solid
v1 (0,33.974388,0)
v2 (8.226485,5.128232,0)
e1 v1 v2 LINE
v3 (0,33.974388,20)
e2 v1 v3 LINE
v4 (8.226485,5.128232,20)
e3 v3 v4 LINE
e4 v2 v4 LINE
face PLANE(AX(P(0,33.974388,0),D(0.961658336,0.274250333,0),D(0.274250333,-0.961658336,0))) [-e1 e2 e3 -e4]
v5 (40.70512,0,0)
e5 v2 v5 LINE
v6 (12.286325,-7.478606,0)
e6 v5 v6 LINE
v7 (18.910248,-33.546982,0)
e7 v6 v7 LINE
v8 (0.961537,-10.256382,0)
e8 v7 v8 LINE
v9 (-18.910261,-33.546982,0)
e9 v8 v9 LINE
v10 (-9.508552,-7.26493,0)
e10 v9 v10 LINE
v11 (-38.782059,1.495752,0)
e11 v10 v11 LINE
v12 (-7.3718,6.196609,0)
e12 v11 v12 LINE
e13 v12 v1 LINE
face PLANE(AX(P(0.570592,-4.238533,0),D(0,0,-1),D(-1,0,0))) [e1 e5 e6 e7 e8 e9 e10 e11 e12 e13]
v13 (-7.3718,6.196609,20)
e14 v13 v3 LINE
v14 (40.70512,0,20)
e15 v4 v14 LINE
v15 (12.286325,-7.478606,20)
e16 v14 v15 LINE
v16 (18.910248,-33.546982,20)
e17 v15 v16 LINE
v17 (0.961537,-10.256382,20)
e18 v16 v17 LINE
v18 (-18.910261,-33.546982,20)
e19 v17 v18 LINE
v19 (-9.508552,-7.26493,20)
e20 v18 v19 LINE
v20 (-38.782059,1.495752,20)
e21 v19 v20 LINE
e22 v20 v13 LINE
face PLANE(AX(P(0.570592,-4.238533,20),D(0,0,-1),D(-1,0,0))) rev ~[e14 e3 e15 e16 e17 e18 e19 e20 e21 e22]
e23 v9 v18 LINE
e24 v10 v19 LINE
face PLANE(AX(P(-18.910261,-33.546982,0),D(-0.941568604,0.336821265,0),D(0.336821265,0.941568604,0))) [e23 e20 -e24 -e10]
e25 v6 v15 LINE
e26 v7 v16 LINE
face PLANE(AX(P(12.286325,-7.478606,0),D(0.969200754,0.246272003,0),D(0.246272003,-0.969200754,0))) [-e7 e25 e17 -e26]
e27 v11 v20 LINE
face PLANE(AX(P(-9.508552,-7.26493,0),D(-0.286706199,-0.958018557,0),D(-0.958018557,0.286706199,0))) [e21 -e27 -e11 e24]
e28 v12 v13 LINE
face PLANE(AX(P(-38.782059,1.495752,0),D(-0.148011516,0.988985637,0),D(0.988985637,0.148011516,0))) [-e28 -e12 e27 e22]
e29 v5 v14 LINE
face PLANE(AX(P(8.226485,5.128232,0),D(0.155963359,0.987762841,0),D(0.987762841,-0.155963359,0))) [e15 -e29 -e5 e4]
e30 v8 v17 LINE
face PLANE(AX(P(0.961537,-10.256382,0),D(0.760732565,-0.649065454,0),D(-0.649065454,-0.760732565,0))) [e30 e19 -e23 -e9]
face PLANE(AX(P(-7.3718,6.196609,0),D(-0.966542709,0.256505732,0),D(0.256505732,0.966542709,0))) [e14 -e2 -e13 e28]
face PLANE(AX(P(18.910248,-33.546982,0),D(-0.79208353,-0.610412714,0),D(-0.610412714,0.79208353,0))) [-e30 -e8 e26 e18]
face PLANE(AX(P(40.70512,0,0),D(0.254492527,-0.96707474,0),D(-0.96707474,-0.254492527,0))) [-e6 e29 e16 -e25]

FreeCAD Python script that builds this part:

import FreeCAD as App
import Part
import Sketcher

V = App.Vector


def add_polygon(sketch, points):
    """Adds a closed chain of lines whose ends are joined by coincident constraints."""
    first, n = sketch.GeometryCount, len(points)
    for a, b in zip(points, points[1:] + points[:1]):
        sketch.addGeometry(Part.LineSegment(App.Vector(*a, 0), App.Vector(*b, 0)), False)
    for i in range(n):
        sketch.addConstraint(Sketcher.Constraint("Coincident", first + i, 2, first + (i + 1) % n, 1))

doc = App.newDocument("Part")
params = doc.addObject("Spreadsheet::Sheet", "Params")
for row, (alias, value) in enumerate([
    ("pad1_length", "20 mm"),
], start=1):
    params.set(f"A{row}", alias)
    params.set(f"B{row}", "=" + value)
    params.setAlias(f"B{row}", alias)

body = doc.addObject("PartDesign::Body", "Body")

sketch1 = body.newObject("Sketcher::SketchObject", "Sketch")
sketch1.AttachmentSupport = (doc.getObject("XY_Plane"), [""])
sketch1.MapMode = "FlatFace"
add_polygon(sketch1, [(8, 5), (0, 34), (-7, 6), (-39, 1), (-10, -7), (-19, -34), (1, -10), (19, -34), (12, -7), (41, 0)])
sketch1.addConstraint(Sketcher.Constraint("PointOnObject", 0, 2, -2))
sketch1.addConstraint(Sketcher.Constraint("PointOnObject", 8, 2, -1))
sketch1.addConstraint(Sketcher.Constraint("Horizontal", 4, 2, 6, 2))
sketch1.addConstraint(Sketcher.Constraint("DistanceX", 1, 2, -1, 1, 7.3718))
sketch1.addConstraint(Sketcher.Constraint("DistanceY", 4, 2, 5, 2, 23.2906))
sketch1.addConstraint(Sketcher.Constraint("DistanceX", 3, 2, 6, 2, 28.4188))
sketch1.addConstraint(Sketcher.Constraint("Distance", 1, 28.739319))
sketch1.addConstraint(Sketcher.Constraint("Distance", 4, 27.913051))
sketch1.addConstraint(Sketcher.Constraint("Distance", 8, 29.386348))
sketch1.addConstraint(Sketcher.Constraint("DistanceY", -1, 1, 1, 2, 6.196609))
sketch1.addConstraint(Sketcher.Constraint("DistanceX", 2, 2, -1, 1, 38.782059))
sketch1.addConstraint(Sketcher.Constraint("DistanceY", 3, 2, -1, 1, 7.26493))
sketch1.addConstraint(Sketcher.Constraint("DistanceX", 4, 2, -1, 1, 18.910261))
sketch1.addConstraint(Sketcher.Constraint("DistanceX", -1, 1, 8, 2, 40.70512))
sketch1.addConstraint(Sketcher.Constraint("DistanceY", -1, 1, 9, 2, 5.128232))
sketch1.addConstraint(Sketcher.Constraint("DistanceX", 3, 2, 1, 2, 2.136752))
sketch1.addConstraint(Sketcher.Constraint("DistanceY", 3, 2, 2, 2, 8.760682))
sketch1.addConstraint(Sketcher.Constraint("DistanceX", 3, 2, 5, 2, 10.470089))
sketch1.addConstraint(Sketcher.Constraint("DistanceX", 9, 2, 7, 2, 4.05984))
sketch1.addConstraint(Sketcher.Constraint("DistanceX", 5, 2, 9, 2, 7.264948))
pad1 = body.newObject("PartDesign::Pad", "Pad")
pad1.Profile = sketch1
pad1.setExpression("Length", "Params.pad1_length")

doc.recompute()
